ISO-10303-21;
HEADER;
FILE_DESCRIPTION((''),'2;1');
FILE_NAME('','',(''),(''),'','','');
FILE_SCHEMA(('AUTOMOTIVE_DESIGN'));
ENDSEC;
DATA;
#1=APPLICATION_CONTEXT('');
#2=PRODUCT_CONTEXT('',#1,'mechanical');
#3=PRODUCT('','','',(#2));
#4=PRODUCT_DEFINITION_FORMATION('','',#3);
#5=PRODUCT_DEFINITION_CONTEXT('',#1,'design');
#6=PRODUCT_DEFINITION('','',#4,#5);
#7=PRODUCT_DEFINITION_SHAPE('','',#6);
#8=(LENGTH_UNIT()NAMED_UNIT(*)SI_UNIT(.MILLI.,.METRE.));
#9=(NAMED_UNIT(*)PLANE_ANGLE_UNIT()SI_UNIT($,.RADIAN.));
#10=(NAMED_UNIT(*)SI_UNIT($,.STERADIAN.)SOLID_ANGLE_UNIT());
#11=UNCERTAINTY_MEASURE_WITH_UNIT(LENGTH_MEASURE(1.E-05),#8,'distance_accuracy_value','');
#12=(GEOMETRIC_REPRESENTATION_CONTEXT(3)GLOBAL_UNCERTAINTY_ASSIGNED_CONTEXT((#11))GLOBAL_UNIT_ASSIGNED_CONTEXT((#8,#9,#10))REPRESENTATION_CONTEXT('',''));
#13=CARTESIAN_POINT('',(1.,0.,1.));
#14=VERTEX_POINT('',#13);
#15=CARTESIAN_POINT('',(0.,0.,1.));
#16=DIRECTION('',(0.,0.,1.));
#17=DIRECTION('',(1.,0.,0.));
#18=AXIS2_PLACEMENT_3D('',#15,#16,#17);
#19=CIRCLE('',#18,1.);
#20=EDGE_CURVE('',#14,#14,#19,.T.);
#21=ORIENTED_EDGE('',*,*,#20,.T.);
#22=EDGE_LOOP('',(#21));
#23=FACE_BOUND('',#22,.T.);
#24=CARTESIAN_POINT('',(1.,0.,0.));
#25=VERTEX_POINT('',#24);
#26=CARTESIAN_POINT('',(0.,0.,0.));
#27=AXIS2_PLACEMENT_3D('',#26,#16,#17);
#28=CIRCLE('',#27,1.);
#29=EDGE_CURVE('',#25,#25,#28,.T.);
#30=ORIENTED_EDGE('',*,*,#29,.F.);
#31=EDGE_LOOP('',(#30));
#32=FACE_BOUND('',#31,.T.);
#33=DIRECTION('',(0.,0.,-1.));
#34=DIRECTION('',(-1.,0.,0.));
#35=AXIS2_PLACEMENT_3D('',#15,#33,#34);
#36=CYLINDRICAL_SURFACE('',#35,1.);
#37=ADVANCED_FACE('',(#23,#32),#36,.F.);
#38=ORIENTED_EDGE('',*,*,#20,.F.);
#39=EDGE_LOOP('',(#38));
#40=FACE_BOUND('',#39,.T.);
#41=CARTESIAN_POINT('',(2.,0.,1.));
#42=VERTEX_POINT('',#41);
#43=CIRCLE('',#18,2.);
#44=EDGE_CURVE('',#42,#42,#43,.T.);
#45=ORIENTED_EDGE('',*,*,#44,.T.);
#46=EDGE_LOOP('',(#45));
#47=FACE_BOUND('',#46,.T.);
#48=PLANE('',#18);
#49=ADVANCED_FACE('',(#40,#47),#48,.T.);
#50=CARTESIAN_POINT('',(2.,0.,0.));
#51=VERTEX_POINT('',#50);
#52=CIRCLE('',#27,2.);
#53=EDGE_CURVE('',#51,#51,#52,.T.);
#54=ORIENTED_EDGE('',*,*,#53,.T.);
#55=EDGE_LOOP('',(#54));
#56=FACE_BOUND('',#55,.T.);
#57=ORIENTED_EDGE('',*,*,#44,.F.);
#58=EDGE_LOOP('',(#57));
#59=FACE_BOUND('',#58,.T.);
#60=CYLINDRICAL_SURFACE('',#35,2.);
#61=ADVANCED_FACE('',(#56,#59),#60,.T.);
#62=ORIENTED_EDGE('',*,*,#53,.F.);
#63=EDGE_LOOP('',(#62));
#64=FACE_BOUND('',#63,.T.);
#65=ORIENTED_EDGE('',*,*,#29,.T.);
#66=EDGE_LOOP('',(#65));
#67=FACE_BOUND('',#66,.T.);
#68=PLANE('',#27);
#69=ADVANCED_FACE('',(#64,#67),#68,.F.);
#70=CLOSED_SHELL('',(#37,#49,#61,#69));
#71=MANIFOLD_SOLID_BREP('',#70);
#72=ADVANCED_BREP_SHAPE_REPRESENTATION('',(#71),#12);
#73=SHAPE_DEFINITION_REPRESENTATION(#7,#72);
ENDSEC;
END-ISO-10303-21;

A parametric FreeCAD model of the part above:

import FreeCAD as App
import Part
import Sketcher

V = App.Vector

doc = App.newDocument("Part")
body = doc.addObject("PartDesign::Body", "Body")

# Sketch on XY plane
sketch1 = body.newObject("Sketcher::SketchObject", "Sketch")
sketch1.AttachmentSupport = (doc.getObject("XY_Plane"), [""])
sketch1.MapMode = "FlatFace"
sketch1.addGeometry(Part.Circle(V(0, 0, 0), V(0, 0, 1), 2), False)
sketch1.addGeometry(Part.Circle(V(0, 0, 0), V(0, 0, 1), 1), False)
sketch1.addConstraint(Sketcher.Constraint("Coincident", 0, 3, -1, 1))
sketch1.addConstraint(Sketcher.Constraint("Coincident", 1, 3, -1, 1))
sketch1.addConstraint(Sketcher.Constraint("Diameter", 0, 4.0))
sketch1.addConstraint(Sketcher.Constraint("Diameter", 1, 2.0))
pad1 = body.newObject("PartDesign::Pad", "Pad")
pad1.Profile = sketch1
pad1.Length = 1

doc.recompute()
